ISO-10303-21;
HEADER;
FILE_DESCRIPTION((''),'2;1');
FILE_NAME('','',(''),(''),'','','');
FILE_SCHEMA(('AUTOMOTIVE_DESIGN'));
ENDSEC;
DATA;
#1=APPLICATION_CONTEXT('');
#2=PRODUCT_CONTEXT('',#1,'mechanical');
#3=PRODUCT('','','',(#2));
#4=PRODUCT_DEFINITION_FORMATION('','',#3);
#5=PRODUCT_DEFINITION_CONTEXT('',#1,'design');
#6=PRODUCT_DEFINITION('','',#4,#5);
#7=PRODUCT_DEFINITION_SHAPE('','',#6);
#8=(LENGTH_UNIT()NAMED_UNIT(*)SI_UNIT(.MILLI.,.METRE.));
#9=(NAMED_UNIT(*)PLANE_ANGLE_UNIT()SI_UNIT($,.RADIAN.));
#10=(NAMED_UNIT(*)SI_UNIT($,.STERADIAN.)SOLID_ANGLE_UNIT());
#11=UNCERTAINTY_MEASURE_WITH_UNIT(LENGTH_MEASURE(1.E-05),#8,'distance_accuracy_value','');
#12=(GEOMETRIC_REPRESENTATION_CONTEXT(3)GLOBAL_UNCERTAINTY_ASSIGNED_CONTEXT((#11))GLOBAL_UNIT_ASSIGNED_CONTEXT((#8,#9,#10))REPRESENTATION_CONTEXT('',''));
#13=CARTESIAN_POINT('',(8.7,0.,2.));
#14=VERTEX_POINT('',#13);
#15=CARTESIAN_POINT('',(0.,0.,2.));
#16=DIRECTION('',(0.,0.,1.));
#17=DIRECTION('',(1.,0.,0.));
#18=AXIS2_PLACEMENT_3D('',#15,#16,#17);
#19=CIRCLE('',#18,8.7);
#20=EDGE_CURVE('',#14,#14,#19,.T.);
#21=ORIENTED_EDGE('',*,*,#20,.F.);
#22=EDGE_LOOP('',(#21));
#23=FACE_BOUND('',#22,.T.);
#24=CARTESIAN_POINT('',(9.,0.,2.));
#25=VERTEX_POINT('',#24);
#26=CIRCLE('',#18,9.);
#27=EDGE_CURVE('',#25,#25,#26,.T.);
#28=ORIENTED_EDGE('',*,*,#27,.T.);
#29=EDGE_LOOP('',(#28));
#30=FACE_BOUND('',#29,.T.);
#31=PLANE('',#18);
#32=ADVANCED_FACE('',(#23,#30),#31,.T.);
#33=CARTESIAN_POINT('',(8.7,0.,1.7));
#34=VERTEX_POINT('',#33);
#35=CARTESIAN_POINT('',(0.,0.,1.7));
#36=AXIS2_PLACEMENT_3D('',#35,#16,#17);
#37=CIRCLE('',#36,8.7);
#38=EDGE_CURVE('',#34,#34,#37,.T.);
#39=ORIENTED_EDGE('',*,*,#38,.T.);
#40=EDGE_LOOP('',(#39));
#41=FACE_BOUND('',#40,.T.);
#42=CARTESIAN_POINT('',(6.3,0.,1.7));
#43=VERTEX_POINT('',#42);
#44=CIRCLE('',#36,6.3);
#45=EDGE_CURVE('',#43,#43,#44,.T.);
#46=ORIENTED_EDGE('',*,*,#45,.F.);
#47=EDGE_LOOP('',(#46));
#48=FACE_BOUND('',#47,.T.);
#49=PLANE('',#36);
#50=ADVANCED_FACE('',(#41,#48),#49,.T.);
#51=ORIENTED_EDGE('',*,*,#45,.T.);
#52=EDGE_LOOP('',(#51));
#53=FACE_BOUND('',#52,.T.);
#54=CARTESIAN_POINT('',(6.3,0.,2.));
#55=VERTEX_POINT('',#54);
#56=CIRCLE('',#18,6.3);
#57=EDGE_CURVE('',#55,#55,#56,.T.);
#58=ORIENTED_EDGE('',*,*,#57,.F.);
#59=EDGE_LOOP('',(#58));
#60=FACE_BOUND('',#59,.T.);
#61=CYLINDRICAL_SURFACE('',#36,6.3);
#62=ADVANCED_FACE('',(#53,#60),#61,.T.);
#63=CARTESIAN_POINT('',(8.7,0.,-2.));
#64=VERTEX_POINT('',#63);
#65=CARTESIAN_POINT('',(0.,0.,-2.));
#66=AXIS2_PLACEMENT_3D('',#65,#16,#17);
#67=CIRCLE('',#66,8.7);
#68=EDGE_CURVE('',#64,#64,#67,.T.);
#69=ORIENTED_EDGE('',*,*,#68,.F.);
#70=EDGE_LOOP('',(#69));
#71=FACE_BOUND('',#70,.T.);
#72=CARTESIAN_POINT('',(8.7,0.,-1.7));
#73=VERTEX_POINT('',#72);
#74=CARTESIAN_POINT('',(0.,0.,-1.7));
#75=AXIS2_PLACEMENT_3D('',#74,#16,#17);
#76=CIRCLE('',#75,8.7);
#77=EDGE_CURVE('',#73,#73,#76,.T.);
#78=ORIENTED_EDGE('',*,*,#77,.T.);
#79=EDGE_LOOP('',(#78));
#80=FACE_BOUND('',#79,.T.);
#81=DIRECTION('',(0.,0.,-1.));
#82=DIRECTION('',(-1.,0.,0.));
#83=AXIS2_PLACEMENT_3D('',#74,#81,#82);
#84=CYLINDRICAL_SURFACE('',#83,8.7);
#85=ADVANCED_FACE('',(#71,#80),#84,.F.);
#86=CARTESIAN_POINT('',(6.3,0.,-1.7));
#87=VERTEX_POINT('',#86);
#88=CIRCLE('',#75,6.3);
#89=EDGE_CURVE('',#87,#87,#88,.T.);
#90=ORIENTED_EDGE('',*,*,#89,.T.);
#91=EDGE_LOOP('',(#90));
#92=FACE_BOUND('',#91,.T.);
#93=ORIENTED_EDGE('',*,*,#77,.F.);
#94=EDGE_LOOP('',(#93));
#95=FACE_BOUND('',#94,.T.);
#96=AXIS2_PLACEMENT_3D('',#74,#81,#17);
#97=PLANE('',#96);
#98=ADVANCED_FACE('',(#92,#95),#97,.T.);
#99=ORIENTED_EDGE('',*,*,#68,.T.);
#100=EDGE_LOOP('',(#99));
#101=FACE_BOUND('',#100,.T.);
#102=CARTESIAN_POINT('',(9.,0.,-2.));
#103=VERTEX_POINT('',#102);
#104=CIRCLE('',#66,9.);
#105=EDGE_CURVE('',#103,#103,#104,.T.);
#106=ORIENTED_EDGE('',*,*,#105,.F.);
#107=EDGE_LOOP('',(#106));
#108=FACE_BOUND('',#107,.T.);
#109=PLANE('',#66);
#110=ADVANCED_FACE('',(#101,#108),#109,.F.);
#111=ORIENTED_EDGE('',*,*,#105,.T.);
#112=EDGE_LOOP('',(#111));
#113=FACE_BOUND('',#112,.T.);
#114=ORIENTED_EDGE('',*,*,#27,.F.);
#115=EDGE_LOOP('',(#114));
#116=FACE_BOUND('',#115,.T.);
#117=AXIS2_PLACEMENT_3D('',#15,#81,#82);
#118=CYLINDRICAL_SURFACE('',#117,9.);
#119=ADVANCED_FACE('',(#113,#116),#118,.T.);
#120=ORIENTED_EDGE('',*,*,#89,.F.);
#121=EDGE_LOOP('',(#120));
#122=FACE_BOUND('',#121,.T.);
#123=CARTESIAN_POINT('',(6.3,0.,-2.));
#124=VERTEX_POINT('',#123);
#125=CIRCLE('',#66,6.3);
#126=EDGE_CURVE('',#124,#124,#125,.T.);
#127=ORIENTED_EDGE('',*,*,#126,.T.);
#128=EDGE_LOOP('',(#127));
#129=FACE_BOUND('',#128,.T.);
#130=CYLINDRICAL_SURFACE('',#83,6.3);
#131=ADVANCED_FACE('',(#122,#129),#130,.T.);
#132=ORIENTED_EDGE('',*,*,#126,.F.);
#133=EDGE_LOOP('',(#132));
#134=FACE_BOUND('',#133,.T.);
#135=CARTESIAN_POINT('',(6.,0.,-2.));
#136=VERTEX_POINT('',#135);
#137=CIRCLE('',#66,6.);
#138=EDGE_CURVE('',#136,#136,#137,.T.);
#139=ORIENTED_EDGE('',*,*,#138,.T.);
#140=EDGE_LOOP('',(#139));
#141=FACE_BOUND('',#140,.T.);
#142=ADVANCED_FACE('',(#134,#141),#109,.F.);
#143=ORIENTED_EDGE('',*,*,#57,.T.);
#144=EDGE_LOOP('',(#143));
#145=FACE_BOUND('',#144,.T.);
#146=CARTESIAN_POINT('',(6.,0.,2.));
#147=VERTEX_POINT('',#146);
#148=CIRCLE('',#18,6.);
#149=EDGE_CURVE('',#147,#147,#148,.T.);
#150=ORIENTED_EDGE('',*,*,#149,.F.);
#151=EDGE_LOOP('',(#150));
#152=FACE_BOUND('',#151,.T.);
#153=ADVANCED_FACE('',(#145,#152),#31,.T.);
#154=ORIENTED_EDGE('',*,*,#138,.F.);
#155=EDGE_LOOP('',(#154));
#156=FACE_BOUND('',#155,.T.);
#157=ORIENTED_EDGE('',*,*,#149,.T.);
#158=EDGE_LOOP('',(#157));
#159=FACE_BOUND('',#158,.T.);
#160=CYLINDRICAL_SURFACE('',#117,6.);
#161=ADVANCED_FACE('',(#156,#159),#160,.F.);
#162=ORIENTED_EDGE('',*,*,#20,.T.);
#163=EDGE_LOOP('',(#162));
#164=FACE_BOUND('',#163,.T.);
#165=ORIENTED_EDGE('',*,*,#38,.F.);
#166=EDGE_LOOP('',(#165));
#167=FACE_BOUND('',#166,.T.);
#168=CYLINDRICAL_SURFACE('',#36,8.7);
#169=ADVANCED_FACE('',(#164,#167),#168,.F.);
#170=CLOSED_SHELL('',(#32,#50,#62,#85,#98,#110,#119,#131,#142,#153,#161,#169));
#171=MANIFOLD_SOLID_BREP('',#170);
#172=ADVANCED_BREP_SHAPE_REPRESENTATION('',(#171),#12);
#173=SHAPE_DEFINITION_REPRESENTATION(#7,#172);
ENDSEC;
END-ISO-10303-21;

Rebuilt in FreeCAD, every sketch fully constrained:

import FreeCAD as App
import Part
import Sketcher
from FreeCAD import Vector
Q = App.Units.Quantity

doc = App.newDocument("Part")
body = doc.addObject("PartDesign::Body", "Body")

sketch1 = body.newObject("Sketcher::SketchObject", "Sketch")
sketch1.AttachmentSupport = (doc.getObject("XY_Plane"), [""])
sketch1.MapMode = "FlatFace"
sketch1.addGeometry([
    Part.Circle(Vector(0, 0, 0), Vector(0, 0, 1), 9),
    Part.Circle(Vector(0, 0, 0), Vector(0, 0, 1), 6),
], False)
sketch1.addConstraint([
    Sketcher.Constraint("Coincident", 0, 3, -1, 1),
    Sketcher.Constraint("Coincident", 1, 3, -1, 1),
    Sketcher.Constraint("Diameter", 0, Q("18 mm")),
    Sketcher.Constraint("Diameter", 1, Q("12 mm")),
])
pad1 = body.newObject("PartDesign::Pad", "Pad")
pad1.Profile = sketch1
pad1.Length = 4
pad1.Midplane = True

sketch2 = body.newObject("Sketcher::SketchObject", "Sketch001")
sketch2.AttachmentSupport = (doc.getObject("XY_Plane"), [""])
sketch2.MapMode = "FlatFace"
sketch2.AttachmentOffset = App.Placement(Vector(0, 0, 2), App.Rotation())
sketch2.addGeometry([
    Part.Circle(Vector(0, 0, 0), Vector(0, 0, 1), 9),
    Part.Circle(Vector(0, 0, 0), Vector(0, 0, 1), 6),
], False)
sketch2.addConstraint([
    Sketcher.Constraint("Coincident", 0, 3, -1, 1),
    Sketcher.Constraint("Coincident", 1, 3, -1, 1),
    Sketcher.Constraint("Diameter", 0, Q("17.4 mm")),
    Sketcher.Constraint("Diameter", 1, Q("12.6 mm")),
])
pocket1 = body.newObject("PartDesign::Pocket", "Pocket")
pocket1.Profile = sketch2
pocket1.Length = 0.3
doc.recompute()

mirrored = body.newObject("PartDesign::Mirrored", "Mirrored")
mirrored.Originals = [pocket1]
mirrored.MirrorPlane = (doc.getObject("XY_Plane"), [""])
body.Tip = mirrored

doc.recompute()
